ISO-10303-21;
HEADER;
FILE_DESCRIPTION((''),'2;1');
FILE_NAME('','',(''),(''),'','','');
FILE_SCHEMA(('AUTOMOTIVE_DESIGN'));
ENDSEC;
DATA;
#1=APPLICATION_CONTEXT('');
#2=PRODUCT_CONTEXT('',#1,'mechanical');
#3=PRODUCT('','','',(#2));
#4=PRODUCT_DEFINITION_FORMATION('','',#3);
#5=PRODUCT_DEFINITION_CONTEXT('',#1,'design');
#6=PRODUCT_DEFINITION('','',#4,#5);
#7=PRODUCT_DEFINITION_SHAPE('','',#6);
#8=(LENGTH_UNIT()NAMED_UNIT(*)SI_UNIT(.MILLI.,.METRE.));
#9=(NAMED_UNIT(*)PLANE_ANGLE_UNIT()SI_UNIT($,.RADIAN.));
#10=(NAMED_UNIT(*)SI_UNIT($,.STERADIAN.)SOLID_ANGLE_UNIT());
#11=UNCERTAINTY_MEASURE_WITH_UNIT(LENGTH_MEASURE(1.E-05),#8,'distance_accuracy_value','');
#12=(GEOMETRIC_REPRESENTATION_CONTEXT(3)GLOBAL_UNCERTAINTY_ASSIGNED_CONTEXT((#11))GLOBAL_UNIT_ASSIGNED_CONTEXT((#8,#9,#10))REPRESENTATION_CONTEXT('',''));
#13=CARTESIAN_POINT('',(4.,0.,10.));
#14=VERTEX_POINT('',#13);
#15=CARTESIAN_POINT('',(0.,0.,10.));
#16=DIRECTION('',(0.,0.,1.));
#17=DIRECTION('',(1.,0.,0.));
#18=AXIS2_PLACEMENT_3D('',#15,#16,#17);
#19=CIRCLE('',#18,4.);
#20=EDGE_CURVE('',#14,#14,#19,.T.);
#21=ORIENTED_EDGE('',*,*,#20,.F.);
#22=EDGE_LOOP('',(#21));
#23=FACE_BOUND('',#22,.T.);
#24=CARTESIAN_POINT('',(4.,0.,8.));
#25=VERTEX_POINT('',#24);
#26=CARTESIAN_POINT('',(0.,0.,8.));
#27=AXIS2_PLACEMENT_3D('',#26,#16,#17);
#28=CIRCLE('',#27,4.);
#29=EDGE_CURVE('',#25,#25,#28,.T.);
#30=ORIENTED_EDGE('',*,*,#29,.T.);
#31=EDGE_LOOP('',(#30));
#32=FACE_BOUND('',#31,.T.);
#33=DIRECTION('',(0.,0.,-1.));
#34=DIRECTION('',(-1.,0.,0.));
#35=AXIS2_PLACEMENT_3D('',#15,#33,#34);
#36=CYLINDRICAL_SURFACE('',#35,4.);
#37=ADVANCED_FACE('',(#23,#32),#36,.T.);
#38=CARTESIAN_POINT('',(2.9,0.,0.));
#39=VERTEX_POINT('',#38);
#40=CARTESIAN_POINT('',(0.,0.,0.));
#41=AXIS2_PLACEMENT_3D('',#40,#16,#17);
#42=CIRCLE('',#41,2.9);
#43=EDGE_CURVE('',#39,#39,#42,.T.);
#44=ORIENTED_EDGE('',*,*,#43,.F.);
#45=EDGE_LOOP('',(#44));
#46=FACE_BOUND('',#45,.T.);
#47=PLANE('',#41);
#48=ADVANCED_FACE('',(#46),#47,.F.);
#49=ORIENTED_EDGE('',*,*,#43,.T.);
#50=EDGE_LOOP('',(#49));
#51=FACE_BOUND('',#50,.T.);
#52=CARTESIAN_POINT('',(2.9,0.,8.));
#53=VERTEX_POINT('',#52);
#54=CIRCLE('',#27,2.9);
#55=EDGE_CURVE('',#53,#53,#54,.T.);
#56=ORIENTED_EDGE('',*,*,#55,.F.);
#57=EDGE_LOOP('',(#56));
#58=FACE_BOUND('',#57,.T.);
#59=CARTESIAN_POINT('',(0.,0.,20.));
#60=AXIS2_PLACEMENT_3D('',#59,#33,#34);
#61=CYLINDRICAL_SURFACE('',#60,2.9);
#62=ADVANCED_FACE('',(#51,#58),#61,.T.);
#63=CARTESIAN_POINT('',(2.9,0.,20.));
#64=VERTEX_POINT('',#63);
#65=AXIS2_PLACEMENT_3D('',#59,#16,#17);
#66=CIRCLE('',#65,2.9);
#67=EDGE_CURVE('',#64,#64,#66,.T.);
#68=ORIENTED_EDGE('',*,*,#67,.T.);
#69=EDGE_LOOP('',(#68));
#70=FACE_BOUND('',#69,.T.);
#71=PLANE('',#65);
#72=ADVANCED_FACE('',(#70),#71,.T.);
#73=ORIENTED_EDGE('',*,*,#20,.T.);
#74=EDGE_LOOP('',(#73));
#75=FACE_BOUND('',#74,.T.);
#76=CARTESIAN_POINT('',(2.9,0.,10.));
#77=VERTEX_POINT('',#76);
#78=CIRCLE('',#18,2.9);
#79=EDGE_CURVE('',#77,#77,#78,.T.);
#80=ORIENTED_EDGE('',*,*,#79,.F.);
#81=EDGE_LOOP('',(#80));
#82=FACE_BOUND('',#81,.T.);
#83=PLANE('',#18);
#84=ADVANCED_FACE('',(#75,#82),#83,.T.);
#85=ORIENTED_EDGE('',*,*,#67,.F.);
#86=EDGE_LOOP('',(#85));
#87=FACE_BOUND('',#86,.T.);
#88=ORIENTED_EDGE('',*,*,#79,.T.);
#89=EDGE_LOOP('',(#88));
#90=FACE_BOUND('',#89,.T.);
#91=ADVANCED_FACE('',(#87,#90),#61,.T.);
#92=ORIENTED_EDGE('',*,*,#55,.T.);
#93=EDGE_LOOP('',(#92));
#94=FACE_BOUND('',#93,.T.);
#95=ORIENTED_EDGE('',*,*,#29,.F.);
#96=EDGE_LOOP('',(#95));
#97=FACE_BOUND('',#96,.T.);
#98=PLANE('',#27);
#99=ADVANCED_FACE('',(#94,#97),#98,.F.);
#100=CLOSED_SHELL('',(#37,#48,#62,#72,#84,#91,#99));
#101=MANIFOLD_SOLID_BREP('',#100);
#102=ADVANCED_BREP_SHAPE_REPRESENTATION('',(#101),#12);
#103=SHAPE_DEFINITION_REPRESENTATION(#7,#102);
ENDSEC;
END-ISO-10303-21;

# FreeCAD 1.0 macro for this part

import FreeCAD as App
import Part
import Sketcher
from FreeCAD import Vector
Q = App.Units.Quantity

doc = App.newDocument("Part")
params = doc.addObject("Spreadsheet::Sheet", "Params")
for row, (alias, value) in enumerate([
    ("sketch1_diameter", "5.8 mm"),
    ("pad1_length", "20 mm"),
    ("sketch2_diameter", "8 mm"),
    ("pad2_length", "2 mm"),
], start=1):
    params.set(f"A{row}", alias)
    params.set(f"B{row}", "=" + value)
    params.setAlias(f"B{row}", alias)

body = doc.addObject("PartDesign::Body", "Body")

sketch1 = doc.addObject("Sketcher::SketchObject", "Sketch")
body.addObject(sketch1)
sketch1.AttachmentSupport = (doc.XY_Plane, [""])
sketch1.MapMode = "FlatFace"
sketch1.addGeometry(Part.Circle(Vector(0, 0, 0), Vector(0, 0, 1), 2.9), False)
sketch1.addConstraint([
    Sketcher.Constraint("Coincident", 0, 3, -1, 1),
    Sketcher.Constraint("Diameter", 0, Q("5.8 mm")),
])
sketch1.setExpression("Constraints[1]", "Params.sketch1_diameter")
pad1 = doc.addObject("PartDesign::Pad", "Pad")
body.addObject(pad1)
pad1.Profile = sketch1
pad1.setExpression("Length", "Params.pad1_length")

sketch2 = doc.addObject("Sketcher::SketchObject", "Sketch001")
body.addObject(sketch2)
sketch2.AttachmentSupport = (doc.XY_Plane, [""])
sketch2.MapMode = "FlatFace"
sketch2.AttachmentOffset = App.Placement(Vector(0, 0, 8), App.Rotation())
sketch2.addGeometry(Part.Circle(Vector(0, 0, 0), Vector(0, 0, 1), 4), False)
sketch2.addConstraint([
    Sketcher.Constraint("Coincident", 0, 3, -1, 1),
    Sketcher.Constraint("Diameter", 0, Q("8 mm")),
])
sketch2.setExpression("Constraints[1]", "Params.sketch2_diameter")
pad2 = doc.addObject("PartDesign::Pad", "Pad001")
body.addObject(pad2)
pad2.Profile = sketch2
pad2.setExpression("Length", "Params.pad2_length")

doc.recompute()
